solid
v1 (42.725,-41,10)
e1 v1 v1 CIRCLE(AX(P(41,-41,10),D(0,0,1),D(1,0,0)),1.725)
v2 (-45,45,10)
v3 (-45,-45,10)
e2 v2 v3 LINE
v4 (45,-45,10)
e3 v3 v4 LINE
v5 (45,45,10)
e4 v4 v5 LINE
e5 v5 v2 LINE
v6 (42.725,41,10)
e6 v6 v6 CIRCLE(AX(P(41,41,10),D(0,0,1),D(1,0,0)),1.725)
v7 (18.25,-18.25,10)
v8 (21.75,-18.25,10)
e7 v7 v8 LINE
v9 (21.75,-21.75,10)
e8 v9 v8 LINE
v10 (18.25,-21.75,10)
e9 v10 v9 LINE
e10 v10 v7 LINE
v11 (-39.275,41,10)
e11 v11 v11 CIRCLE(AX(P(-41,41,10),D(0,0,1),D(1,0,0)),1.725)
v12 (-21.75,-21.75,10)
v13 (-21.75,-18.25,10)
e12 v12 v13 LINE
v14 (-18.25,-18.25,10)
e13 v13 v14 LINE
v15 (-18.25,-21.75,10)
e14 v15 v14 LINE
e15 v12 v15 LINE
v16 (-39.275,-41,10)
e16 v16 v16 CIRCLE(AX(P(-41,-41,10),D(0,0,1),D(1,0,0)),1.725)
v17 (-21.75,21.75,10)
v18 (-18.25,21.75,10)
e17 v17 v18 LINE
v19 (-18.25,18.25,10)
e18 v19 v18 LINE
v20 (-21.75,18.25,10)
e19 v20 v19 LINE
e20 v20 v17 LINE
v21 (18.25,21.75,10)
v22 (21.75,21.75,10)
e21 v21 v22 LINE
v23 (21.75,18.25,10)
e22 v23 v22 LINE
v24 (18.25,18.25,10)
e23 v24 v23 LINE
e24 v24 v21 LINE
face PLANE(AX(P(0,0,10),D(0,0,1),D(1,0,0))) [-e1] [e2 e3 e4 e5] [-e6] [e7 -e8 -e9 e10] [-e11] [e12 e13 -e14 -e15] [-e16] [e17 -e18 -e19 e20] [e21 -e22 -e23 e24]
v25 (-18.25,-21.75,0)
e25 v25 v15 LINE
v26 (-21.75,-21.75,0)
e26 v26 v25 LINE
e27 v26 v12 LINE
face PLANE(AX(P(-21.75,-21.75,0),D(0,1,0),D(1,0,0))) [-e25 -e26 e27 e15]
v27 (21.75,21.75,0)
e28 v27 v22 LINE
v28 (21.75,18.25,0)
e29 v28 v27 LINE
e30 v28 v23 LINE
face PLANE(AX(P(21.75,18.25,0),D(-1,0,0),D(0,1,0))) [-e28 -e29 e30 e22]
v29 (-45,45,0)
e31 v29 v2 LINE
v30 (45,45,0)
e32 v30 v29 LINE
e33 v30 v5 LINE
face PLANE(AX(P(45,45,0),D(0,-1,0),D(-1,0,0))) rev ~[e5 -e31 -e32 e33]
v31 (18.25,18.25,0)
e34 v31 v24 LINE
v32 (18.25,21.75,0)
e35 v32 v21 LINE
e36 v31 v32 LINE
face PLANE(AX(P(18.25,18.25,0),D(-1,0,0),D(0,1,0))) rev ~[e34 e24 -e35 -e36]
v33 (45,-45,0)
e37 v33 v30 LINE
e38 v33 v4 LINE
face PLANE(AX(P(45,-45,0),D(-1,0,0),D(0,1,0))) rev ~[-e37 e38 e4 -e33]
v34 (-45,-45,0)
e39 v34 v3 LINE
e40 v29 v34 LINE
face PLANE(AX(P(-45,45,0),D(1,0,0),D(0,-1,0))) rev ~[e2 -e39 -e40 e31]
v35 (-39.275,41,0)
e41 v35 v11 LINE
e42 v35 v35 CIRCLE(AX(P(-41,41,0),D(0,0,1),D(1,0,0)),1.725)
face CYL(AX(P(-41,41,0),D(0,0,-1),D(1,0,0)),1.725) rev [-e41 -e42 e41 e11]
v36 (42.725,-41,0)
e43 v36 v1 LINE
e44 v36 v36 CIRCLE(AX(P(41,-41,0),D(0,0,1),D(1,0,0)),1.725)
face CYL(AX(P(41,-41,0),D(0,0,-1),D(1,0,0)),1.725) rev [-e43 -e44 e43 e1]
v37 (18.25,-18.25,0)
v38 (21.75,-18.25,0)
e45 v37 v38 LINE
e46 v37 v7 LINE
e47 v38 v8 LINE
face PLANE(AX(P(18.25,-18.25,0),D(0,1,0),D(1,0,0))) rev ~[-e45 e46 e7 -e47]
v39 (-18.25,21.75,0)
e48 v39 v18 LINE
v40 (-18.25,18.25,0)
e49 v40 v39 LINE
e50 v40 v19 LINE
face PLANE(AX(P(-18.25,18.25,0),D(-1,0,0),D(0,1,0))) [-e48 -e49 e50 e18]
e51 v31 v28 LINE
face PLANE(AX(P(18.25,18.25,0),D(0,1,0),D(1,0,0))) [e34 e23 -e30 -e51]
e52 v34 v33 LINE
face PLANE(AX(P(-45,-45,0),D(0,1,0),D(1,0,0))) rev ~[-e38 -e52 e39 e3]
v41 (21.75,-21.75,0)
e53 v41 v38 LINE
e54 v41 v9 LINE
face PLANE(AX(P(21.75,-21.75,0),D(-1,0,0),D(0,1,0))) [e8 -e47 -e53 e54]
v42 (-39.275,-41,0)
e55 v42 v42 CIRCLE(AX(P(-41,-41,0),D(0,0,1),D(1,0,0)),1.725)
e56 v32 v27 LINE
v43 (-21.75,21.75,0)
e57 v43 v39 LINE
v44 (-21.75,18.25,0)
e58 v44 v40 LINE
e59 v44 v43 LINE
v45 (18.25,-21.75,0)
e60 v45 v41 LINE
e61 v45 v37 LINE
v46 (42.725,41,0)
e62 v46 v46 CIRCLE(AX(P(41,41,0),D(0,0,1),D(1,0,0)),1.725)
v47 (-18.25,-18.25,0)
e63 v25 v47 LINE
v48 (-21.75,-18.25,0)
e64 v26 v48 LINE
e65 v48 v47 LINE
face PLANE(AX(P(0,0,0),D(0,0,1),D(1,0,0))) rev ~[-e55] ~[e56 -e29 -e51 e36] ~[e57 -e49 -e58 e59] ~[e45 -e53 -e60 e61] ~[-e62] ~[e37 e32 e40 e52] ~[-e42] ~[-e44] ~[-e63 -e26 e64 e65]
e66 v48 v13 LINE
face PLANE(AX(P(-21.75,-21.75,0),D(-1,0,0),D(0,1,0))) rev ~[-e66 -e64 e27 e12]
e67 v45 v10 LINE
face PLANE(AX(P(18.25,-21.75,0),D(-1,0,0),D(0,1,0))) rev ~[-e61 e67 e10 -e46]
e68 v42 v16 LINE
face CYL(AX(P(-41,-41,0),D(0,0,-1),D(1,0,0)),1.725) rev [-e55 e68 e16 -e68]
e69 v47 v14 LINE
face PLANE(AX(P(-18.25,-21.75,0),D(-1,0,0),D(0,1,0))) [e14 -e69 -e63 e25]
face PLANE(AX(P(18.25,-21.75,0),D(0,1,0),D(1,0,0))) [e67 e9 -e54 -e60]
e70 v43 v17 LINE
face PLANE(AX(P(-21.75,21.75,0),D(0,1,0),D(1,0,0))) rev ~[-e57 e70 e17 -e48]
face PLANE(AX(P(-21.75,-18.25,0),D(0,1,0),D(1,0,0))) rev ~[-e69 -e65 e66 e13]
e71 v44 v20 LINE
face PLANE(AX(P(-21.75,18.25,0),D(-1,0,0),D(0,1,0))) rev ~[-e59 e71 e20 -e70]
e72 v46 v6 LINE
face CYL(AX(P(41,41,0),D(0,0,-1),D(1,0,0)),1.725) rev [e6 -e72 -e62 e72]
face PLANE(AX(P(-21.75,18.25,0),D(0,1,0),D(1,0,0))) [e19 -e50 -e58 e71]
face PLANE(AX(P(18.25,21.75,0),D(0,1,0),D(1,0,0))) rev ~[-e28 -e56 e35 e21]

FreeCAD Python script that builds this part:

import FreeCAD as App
import Part
import Sketcher

V = App.Vector
Q = App.Units.Quantity


def add_polygon(sketch, points):
    """Adds a closed chain of lines whose ends are joined by coincident constraints."""
    first, n = sketch.GeometryCount, len(points)
    for a, b in zip(points, points[1:] + points[:1]):
        sketch.addGeometry(Part.LineSegment(App.Vector(*a, 0), App.Vector(*b, 0)), False)
    for i in range(n):
        sketch.addConstraint(Sketcher.Constraint("Coincident", first + i, 2, first + (i + 1) % n, 1))

doc = App.newDocument("Part")
body = doc.addObject("PartDesign::Body", "Body")

# Sketch on XY plane
sketch1 = body.newObject("Sketcher::SketchObject", "Sketch")
sketch1.AttachmentSupport = (doc.getObject("XY_Plane"), [""])
sketch1.MapMode = "FlatFace"
add_polygon(sketch1, [(45, -45), (45, 45), (-45, 45), (-45, -45)])  # lines 0-3
sketch1.addGeometry(Part.Circle(V(-41, -41, 0), V(0, 0, 1), 1.7), False)  # 4
add_polygon(sketch1, [(-18.2, -21.8), (-21.8, -21.8), (-21.8, -18.2), (-18.2, -18.2)])  # lines 5-8
sketch1.addGeometry(Part.Circle(V(41, -41, 0), V(0, 0, 1), 1.7), False)  # 9
add_polygon(sketch1, [(21.8, -21.8), (18.2, -21.8), (18.2, -18.2), (21.8, -18.2)])  # lines 10-13
add_polygon(sketch1, [(-18.2, 18.2), (-21.8, 18.2), (-21.8, 21.8), (-18.2, 21.8)])  # lines 14-17
sketch1.addGeometry(Part.Circle(V(-41, 41, 0), V(0, 0, 1), 1.7), False)  # 18
add_polygon(sketch1, [(21.8, 18.2), (18.2, 18.2), (18.2, 21.8), (21.8, 21.8)])  # lines 19-22
sketch1.addGeometry(Part.Circle(V(41, 41, 0), V(0, 0, 1), 1.7), False)  # 23
sketch1.addConstraint([
    Sketcher.Constraint("Vertical", 0),
    Sketcher.Constraint("Horizontal", 1),
    Sketcher.Constraint("Vertical", 2),
    Sketcher.Constraint("Horizontal", 3),
    Sketcher.Constraint("Horizontal", 5),
    Sketcher.Constraint("Vertical", 6),
    Sketcher.Constraint("Horizontal", 7),
    Sketcher.Constraint("Vertical", 8),
    Sketcher.Constraint("Horizontal", 10),
    Sketcher.Constraint("Vertical", 11),
    Sketcher.Constraint("Horizontal", 12),
    Sketcher.Constraint("Vertical", 13),
    Sketcher.Constraint("Horizontal", 14),
    Sketcher.Constraint("Vertical", 15),
    Sketcher.Constraint("Horizontal", 16),
    Sketcher.Constraint("Vertical", 17),
    Sketcher.Constraint("Horizontal", 19),
    Sketcher.Constraint("Vertical", 20),
    Sketcher.Constraint("Horizontal", 21),
    Sketcher.Constraint("Vertical", 22),
    Sketcher.Constraint("Equal", 4, 9),
    Sketcher.Constraint("Equal", 9, 18),
    Sketcher.Constraint("Equal", 18, 23),
    Sketcher.Constraint("Symmetric", 9, 3, 18, 3, -1, 1),
    Sketcher.Constraint("Symmetric", 4, 3, 23, 3, -1, 1),
    Sketcher.Constraint("Symmetric", 0, 2, 2, 2, -1, 1),
    Sketcher.Constraint("Symmetric", 12, 2, 14, 2, -1, 1),
    Sketcher.Constraint("Symmetric", 10, 2, 16, 2, -1, 1),
    Sketcher.Constraint("Symmetric", 7, 2, 19, 2, -1, 1),
    Sketcher.Constraint("Symmetric", 5, 2, 21, 2, -1, 1),
    Sketcher.Constraint("Symmetric", 4, 3, 9, 3, -2),
    Sketcher.Constraint("Symmetric", 8, 2, 10, 2, -2),
    Sketcher.Constraint("Symmetric", 6, 2, 12, 2, -2),
    Sketcher.Constraint("Equal", 3, 0),
    Sketcher.Constraint("Equal", 21, 6),
    Sketcher.Constraint("Diameter", 4, Q("3.45 mm")),
    Sketcher.Constraint("DistanceX", 1, 2, 1, 1, Q("90 mm")),
    Sketcher.Constraint("DistanceX", 5, 2, 5, 1, Q("3.5 mm")),
    Sketcher.Constraint("DistanceX", 4, 3, -1, 1, Q("41 mm")),
    Sketcher.Constraint("DistanceY", 4, 3, -1, 1, Q("41 mm")),
    Sketcher.Constraint("DistanceX", 5, 2, 10, 2, Q("40 mm")),
    Sketcher.Constraint("DistanceY", 5, 2, 14, 2, Q("40 mm")),
])
pad1 = body.newObject("PartDesign::Pad", "Pad")
pad1.Profile = sketch1
pad1.Length = 10

doc.recompute()
